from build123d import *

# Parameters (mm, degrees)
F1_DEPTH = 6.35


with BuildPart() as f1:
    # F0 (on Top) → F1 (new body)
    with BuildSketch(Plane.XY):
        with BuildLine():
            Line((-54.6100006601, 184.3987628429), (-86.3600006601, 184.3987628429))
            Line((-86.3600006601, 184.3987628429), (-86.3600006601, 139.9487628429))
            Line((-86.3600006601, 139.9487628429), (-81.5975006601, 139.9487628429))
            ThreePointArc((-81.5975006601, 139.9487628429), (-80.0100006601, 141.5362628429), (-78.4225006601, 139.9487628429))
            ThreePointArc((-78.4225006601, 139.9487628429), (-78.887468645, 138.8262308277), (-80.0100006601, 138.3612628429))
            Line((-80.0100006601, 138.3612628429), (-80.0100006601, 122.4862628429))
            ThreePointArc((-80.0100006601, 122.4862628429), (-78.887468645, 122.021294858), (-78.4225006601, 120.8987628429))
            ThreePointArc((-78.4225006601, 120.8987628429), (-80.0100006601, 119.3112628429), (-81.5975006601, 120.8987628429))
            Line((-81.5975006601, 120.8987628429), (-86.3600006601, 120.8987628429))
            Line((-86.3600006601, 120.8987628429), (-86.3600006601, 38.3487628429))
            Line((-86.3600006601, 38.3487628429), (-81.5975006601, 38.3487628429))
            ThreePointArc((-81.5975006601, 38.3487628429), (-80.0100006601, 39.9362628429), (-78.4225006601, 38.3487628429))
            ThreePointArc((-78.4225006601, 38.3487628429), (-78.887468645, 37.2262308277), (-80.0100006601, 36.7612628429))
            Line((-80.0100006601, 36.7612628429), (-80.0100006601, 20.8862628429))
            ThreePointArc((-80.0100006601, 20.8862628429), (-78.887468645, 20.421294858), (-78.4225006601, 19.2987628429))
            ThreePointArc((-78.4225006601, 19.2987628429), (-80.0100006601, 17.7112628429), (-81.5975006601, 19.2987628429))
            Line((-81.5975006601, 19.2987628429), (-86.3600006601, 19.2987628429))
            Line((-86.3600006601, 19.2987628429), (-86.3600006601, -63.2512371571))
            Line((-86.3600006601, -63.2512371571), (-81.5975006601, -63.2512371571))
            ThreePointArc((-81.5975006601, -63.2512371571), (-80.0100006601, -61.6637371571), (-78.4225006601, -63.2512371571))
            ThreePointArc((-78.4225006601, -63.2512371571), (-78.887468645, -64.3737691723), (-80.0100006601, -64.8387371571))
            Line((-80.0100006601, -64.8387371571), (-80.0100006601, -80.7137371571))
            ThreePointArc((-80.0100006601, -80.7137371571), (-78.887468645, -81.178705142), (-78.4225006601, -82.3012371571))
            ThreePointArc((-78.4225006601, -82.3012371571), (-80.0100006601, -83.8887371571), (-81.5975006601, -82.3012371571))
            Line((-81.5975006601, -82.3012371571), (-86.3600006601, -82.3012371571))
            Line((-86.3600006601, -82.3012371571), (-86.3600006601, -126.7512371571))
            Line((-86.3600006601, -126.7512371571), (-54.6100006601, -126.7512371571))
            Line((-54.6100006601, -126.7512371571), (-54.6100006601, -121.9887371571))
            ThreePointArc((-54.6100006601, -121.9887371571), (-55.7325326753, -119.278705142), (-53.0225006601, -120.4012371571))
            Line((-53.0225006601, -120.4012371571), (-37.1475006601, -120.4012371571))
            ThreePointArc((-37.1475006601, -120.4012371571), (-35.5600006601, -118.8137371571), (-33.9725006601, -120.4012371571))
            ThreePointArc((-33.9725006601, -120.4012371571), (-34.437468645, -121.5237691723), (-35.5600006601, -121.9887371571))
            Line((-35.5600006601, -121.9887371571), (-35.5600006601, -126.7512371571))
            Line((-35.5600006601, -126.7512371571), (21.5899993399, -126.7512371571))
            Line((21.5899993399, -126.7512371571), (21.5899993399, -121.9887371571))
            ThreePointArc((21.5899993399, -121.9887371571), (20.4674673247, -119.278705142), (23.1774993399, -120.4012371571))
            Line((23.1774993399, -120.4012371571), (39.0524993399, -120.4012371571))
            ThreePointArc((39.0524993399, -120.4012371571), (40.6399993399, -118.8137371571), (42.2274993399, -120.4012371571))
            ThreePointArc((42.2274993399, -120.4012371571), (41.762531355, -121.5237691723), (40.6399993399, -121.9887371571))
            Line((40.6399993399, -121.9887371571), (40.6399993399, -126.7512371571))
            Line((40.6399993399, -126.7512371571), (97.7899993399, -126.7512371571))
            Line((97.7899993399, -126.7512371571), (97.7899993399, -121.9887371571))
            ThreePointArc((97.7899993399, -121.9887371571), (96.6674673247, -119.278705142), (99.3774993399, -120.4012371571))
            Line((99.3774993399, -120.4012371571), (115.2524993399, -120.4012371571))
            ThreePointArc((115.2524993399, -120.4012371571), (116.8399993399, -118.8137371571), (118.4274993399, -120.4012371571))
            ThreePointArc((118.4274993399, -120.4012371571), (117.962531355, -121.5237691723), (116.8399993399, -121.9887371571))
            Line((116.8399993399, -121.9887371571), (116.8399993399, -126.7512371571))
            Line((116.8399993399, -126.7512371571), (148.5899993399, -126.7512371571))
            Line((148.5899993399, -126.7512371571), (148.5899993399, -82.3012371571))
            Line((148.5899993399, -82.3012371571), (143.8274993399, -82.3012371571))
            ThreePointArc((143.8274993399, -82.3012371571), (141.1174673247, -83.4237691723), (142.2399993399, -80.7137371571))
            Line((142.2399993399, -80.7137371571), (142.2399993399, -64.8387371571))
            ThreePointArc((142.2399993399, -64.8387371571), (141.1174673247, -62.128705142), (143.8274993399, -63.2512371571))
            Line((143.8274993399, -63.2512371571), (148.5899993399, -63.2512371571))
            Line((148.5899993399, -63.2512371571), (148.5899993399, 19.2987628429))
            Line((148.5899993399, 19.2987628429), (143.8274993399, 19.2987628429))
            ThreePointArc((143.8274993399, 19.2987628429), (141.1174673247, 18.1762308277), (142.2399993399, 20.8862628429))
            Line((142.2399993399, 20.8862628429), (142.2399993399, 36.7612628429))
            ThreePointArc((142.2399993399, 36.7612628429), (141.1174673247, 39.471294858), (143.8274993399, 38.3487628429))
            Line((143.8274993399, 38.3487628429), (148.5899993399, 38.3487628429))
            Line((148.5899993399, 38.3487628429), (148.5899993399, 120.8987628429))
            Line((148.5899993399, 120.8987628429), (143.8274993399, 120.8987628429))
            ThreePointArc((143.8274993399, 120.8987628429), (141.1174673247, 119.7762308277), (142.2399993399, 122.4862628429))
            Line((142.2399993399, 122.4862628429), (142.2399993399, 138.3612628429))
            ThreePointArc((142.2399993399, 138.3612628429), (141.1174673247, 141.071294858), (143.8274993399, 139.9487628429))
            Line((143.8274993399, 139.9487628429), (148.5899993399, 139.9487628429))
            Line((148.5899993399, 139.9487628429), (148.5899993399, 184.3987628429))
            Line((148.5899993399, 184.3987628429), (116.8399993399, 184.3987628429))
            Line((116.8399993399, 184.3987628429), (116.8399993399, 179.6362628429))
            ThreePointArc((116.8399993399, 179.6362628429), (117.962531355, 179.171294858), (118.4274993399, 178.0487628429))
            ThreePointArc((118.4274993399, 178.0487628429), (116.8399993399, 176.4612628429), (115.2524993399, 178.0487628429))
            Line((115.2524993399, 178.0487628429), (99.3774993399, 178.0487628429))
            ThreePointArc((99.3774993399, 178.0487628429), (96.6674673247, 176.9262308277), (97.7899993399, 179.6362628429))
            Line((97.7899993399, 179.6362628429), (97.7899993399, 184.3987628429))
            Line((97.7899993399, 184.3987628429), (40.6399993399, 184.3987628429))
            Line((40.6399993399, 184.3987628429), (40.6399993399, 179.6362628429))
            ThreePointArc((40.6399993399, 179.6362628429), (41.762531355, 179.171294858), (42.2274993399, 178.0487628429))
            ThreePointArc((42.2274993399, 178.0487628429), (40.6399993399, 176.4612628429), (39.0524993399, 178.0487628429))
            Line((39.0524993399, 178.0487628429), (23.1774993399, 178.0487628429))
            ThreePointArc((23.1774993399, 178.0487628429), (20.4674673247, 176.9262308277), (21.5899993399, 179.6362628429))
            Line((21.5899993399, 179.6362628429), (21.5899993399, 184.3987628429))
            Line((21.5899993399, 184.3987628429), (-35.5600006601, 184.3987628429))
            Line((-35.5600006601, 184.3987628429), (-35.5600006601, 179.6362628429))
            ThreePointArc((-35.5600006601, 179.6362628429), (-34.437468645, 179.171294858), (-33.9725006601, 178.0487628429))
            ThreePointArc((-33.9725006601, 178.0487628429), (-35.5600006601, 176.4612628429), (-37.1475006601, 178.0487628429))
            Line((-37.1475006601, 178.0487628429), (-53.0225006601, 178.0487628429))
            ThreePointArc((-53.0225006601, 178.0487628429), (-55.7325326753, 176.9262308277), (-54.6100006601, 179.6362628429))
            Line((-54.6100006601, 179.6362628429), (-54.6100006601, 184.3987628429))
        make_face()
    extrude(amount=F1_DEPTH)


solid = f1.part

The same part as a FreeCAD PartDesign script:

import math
import FreeCAD as App
import Part
import Sketcher

V = App.Vector
Q = App.Units.Quantity

doc = App.newDocument("Part")
body = doc.addObject("PartDesign::Body", "Body")

# Sketch on XY plane
sketch1 = doc.addObject("Sketcher::SketchObject", "Sketch")
body.addObject(sketch1)
sketch1.AttachmentSupport = (doc.XY_Plane, [""])
sketch1.MapMode = "FlatFace"
sketch1.addGeometry(Part.LineSegment(V(-54.6, 184.4, 0), V(-86.4, 184.4, 0)), False)
sketch1.addGeometry(Part.LineSegment(V(-86.4, 184.4, 0), V(-86.4, 139.9, 0)), False)
sketch1.addGeometry(Part.LineSegment(V(-86.4, 139.9, 0), V(-81.6, 139.9, 0)), False)
sketch1.addGeometry(Part.ArcOfCircle(Part.Circle(V(-80, 139.9, 0), V(0, 0, 1), 1.6), math.radians(0), math.radians(180)), False)
sketch1.addGeometry(Part.ArcOfCircle(Part.Circle(V(-80, 139.9, 0), V(0, 0, 1), 1.6), math.radians(-90), math.radians(0)), False)
sketch1.addGeometry(Part.LineSegment(V(-80, 138.4, 0), V(-80, 122.5, 0)), False)
sketch1.addGeometry(Part.ArcOfCircle(Part.Circle(V(-80, 120.9, 0), V(0, 0, 1), 1.6), math.radians(0), math.radians(90)), False)
sketch1.addGeometry(Part.ArcOfCircle(Part.Circle(V(-80, 120.9, 0), V(0, 0, 1), 1.6), math.radians(180), math.radians(360)), False)
sketch1.addGeometry(Part.LineSegment(V(-81.6, 120.9, 0), V(-86.4, 120.9, 0)), False)
sketch1.addGeometry(Part.LineSegment(V(-86.4, 120.9, 0), V(-86.4, 38.3, 0)), False)
sketch1.addGeometry(Part.LineSegment(V(-86.4, 38.3, 0), V(-81.6, 38.3, 0)), False)
sketch1.addGeometry(Part.ArcOfCircle(Part.Circle(V(-80, 38.3, 0), V(0, 0, 1), 1.6), math.radians(0), math.radians(180)), False)
sketch1.addGeometry(Part.ArcOfCircle(Part.Circle(V(-80, 38.3, 0), V(0, 0, 1), 1.6), math.radians(-90), math.radians(0)), False)
sketch1.addGeometry(Part.LineSegment(V(-80, 36.8, 0), V(-80, 20.9, 0)), False)
sketch1.addGeometry(Part.ArcOfCircle(Part.Circle(V(-80, 19.3, 0), V(0, 0, 1), 1.6), math.radians(0), math.radians(90)), False)
sketch1.addGeometry(Part.ArcOfCircle(Part.Circle(V(-80, 19.3, 0), V(0, 0, 1), 1.6), math.radians(180), math.radians(360)), False)
sketch1.addGeometry(Part.LineSegment(V(-81.6, 19.3, 0), V(-86.4, 19.3, 0)), False)
sketch1.addGeometry(Part.LineSegment(V(-86.4, 19.3, 0), V(-86.4, -63.3, 0)), False)
sketch1.addGeometry(Part.LineSegment(V(-86.4, -63.3, 0), V(-81.6, -63.3, 0)), False)
sketch1.addGeometry(Part.ArcOfCircle(Part.Circle(V(-80, -63.3, 0), V(0, 0, 1), 1.6), math.radians(0), math.radians(180)), False)
sketch1.addGeometry(Part.ArcOfCircle(Part.Circle(V(-80, -63.3, 0), V(0, 0, 1), 1.6), math.radians(-90), math.radians(0)), False)
sketch1.addGeometry(Part.LineSegment(V(-80, -64.8, 0), V(-80, -80.7, 0)), False)
sketch1.addGeometry(Part.ArcOfCircle(Part.Circle(V(-80, -82.3, 0), V(0, 0, 1), 1.6), math.radians(0), math.radians(90)), False)
sketch1.addGeometry(Part.ArcOfCircle(Part.Circle(V(-80, -82.3, 0), V(0, 0, 1), 1.6), math.radians(180), math.radians(360)), False)
sketch1.addGeometry(Part.LineSegment(V(-81.6, -82.3, 0), V(-86.4, -82.3, 0)), False)
sketch1.addGeometry(Part.LineSegment(V(-86.4, -82.3, 0), V(-86.4, -126.8, 0)), False)
sketch1.addGeometry(Part.LineSegment(V(-86.4, -126.8, 0), V(-54.6, -126.8, 0)), False)
sketch1.addGeometry(Part.LineSegment(V(-54.6, -126.8, 0), V(-54.6, -122, 0)), False)
sketch1.addGeometry(Part.ArcOfCircle(Part.Circle(V(-54.6, -120.4, 0), V(0, 0, 1), 1.6), math.radians(0), math.radians(270)), False)
sketch1.addGeometry(Part.LineSegment(V(-53, -120.4, 0), V(-37.1, -120.4, 0)), False)
sketch1.addGeometry(Part.ArcOfCircle(Part.Circle(V(-35.6, -120.4, 0), V(0, 0, 1), 1.6), math.radians(0), math.radians(180)), False)
sketch1.addGeometry(Part.ArcOfCircle(Part.Circle(V(-35.6, -120.4, 0), V(0, 0, 1), 1.6), math.radians(-90), math.radians(0)), False)
sketch1.addGeometry(Part.LineSegment(V(-35.6, -122, 0), V(-35.6, -126.8, 0)), False)
sketch1.addGeometry(Part.LineSegment(V(-35.6, -126.8, 0), V(21.6, -126.8, 0)), False)
sketch1.addGeometry(Part.LineSegment(V(21.6, -126.8, 0), V(21.6, -122, 0)), False)
sketch1.addGeometry(Part.ArcOfCircle(Part.Circle(V(21.6, -120.4, 0), V(0, 0, 1), 1.6), math.radians(0), math.radians(270)), False)
sketch1.addGeometry(Part.LineSegment(V(23.2, -120.4, 0), V(39.1, -120.4, 0)), False)
sketch1.addGeometry(Part.ArcOfCircle(Part.Circle(V(40.6, -120.4, 0), V(0, 0, 1), 1.6), math.radians(0), math.radians(180)), False)
sketch1.addGeometry(Part.ArcOfCircle(Part.Circle(V(40.6, -120.4, 0), V(0, 0, 1), 1.6), math.radians(-90), math.radians(0)), False)
sketch1.addGeometry(Part.LineSegment(V(40.6, -122, 0), V(40.6, -126.8, 0)), False)
sketch1.addGeometry(Part.LineSegment(V(40.6, -126.8, 0), V(97.8, -126.8, 0)), False)
sketch1.addGeometry(Part.LineSegment(V(97.8, -126.8, 0), V(97.8, -122, 0)), False)
sketch1.addGeometry(Part.ArcOfCircle(Part.Circle(V(97.8, -120.4, 0), V(0, 0, 1), 1.6), math.radians(0), math.radians(270)), False)
sketch1.addGeometry(Part.LineSegment(V(99.4, -120.4, 0), V(115.3, -120.4, 0)), False)
sketch1.addGeometry(Part.ArcOfCircle(Part.Circle(V(116.8, -120.4, 0), V(0, 0, 1), 1.6), math.radians(0), math.radians(180)), False)
sketch1.addGeometry(Part.ArcOfCircle(Part.Circle(V(116.8, -120.4, 0), V(0, 0, 1), 1.6), math.radians(-90), math.radians(0)), False)
sketch1.addGeometry(Part.LineSegment(V(116.8, -122, 0), V(116.8, -126.8, 0)), False)
sketch1.addGeometry(Part.LineSegment(V(116.8, -126.8, 0), V(148.6, -126.8, 0)), False)
sketch1.addGeometry(Part.LineSegment(V(148.6, -126.8, 0), V(148.6, -82.3, 0)), False)
sketch1.addGeometry(Part.LineSegment(V(148.6, -82.3, 0), V(143.8, -82.3, 0)), False)
sketch1.addGeometry(Part.ArcOfCircle(Part.Circle(V(142.2, -82.3, 0), V(0, 0, 1), 1.6), math.radians(90), math.radians(360)), False)
sketch1.addGeometry(Part.LineSegment(V(142.2, -80.7, 0), V(142.2, -64.8, 0)), False)
sketch1.addGeometry(Part.ArcOfCircle(Part.Circle(V(142.2, -63.3, 0), V(0, 0, 1), 1.6), math.radians(0), math.radians(270)), False)
sketch1.addGeometry(Part.LineSegment(V(143.8, -63.3, 0), V(148.6, -63.3, 0)), False)
sketch1.addGeometry(Part.LineSegment(V(148.6, -63.3, 0), V(148.6, 19.3, 0)), False)
sketch1.addGeometry(Part.LineSegment(V(148.6, 19.3, 0), V(143.8, 19.3, 0)), False)
sketch1.addGeometry(Part.ArcOfCircle(Part.Circle(V(142.2, 19.3, 0), V(0, 0, 1), 1.6), math.radians(90), math.radians(360)), False)
sketch1.addGeometry(Part.LineSegment(V(142.2, 20.9, 0), V(142.2, 36.8, 0)), False)
sketch1.addGeometry(Part.ArcOfCircle(Part.Circle(V(142.2, 38.3, 0), V(0, 0, 1), 1.6), math.radians(0), math.radians(270)), False)
sketch1.addGeometry(Part.LineSegment(V(143.8, 38.3, 0), V(148.6, 38.3, 0)), False)
sketch1.addGeometry(Part.LineSegment(V(148.6, 38.3, 0), V(148.6, 120.9, 0)), False)
sketch1.addGeometry(Part.LineSegment(V(148.6, 120.9, 0), V(143.8, 120.9, 0)), False)
sketch1.addGeometry(Part.ArcOfCircle(Part.Circle(V(142.2, 120.9, 0), V(0, 0, 1), 1.6), math.radians(90), math.radians(360)), False)
sketch1.addGeometry(Part.LineSegment(V(142.2, 122.5, 0), V(142.2, 138.4, 0)), False)
sketch1.addGeometry(Part.ArcOfCircle(Part.Circle(V(142.2, 139.9, 0), V(0, 0, 1), 1.6), math.radians(0), math.radians(270)), False)
sketch1.addGeometry(Part.LineSegment(V(143.8, 139.9, 0), V(148.6, 139.9, 0)), False)
sketch1.addGeometry(Part.LineSegment(V(148.6, 139.9, 0), V(148.6, 184.4, 0)), False)
sketch1.addGeometry(Part.LineSegment(V(148.6, 184.4, 0), V(116.8, 184.4, 0)), False)
sketch1.addGeometry(Part.LineSegment(V(116.8, 184.4, 0), V(116.8, 179.6, 0)), False)
sketch1.addGeometry(Part.ArcOfCircle(Part.Circle(V(116.8, 178, 0), V(0, 0, 1), 1.6), math.radians(0), math.radians(90)), False)
sketch1.addGeometry(Part.ArcOfCircle(Part.Circle(V(116.8, 178, 0), V(0, 0, 1), 1.6), math.radians(180), math.radians(360)), False)
sketch1.addGeometry(Part.LineSegment(V(115.3, 178, 0), V(99.4, 178, 0)), False)
sketch1.addGeometry(Part.ArcOfCircle(Part.Circle(V(97.8, 178, 0), V(0, 0, 1), 1.6), math.radians(90), math.radians(360)), False)
sketch1.addGeometry(Part.LineSegment(V(97.8, 179.6, 0), V(97.8, 184.4, 0)), False)
sketch1.addGeometry(Part.LineSegment(V(97.8, 184.4, 0), V(40.6, 184.4, 0)), False)
sketch1.addGeometry(Part.LineSegment(V(40.6, 184.4, 0), V(40.6, 179.6, 0)), False)
sketch1.addGeometry(Part.ArcOfCircle(Part.Circle(V(40.6, 178, 0), V(0, 0, 1), 1.6), math.radians(0), math.radians(90)), False)
sketch1.addGeometry(Part.ArcOfCircle(Part.Circle(V(40.6, 178, 0), V(0, 0, 1), 1.6), math.radians(180), math.radians(360)), False)
sketch1.addGeometry(Part.LineSegment(V(39.1, 178, 0), V(23.2, 178, 0)), False)
sketch1.addGeometry(Part.ArcOfCircle(Part.Circle(V(21.6, 178, 0), V(0, 0, 1), 1.6), math.radians(90), math.radians(360)), False)
sketch1.addGeometry(Part.LineSegment(V(21.6, 179.6, 0), V(21.6, 184.4, 0)), False)
sketch1.addGeometry(Part.LineSegment(V(21.6, 184.4, 0), V(-35.6, 184.4, 0)), False)
sketch1.addGeometry(Part.LineSegment(V(-35.6, 184.4, 0), V(-35.6, 179.6, 0)), False)
sketch1.addGeometry(Part.ArcOfCircle(Part.Circle(V(-35.6, 178, 0), V(0, 0, 1), 1.6), math.radians(0), math.radians(90)), False)
sketch1.addGeometry(Part.ArcOfCircle(Part.Circle(V(-35.6, 178, 0), V(0, 0, 1), 1.6), math.radians(180), math.radians(360)), False)
sketch1.addGeometry(Part.LineSegment(V(-37.1, 178, 0), V(-53, 178, 0)), False)
sketch1.addGeometry(Part.ArcOfCircle(Part.Circle(V(-54.6, 178, 0), V(0, 0, 1), 1.6), math.radians(90), math.radians(360)), False)
sketch1.addGeometry(Part.LineSegment(V(-54.6, 179.6, 0), V(-54.6, 184.4, 0)), False)
sketch1.addConstraint(Sketcher.Constraint("Coincident", 0, 2, 1, 1))
sketch1.addConstraint(Sketcher.Constraint("Coincident", 1, 2, 2, 1))
sketch1.addConstraint(Sketcher.Constraint("Coincident", 2, 2, 3, 2))
sketch1.addConstraint(Sketcher.Constraint("Tangent", 3, 1, 4, 2))
sketch1.addConstraint(Sketcher.Constraint("Coincident", 4, 1, 5, 1))
sketch1.addConstraint(Sketcher.Constraint("Coincident", 5, 2, 6, 2))
sketch1.addConstraint(Sketcher.Constraint("Tangent", 6, 1, 7, 2))
sketch1.addConstraint(Sketcher.Constraint("Coincident", 7, 1, 8, 1))
sketch1.addConstraint(Sketcher.Constraint("Coincident", 8, 2, 9, 1))
sketch1.addConstraint(Sketcher.Constraint("Coincident", 9, 2, 10, 1))
sketch1.addConstraint(Sketcher.Constraint("Coincident", 10, 2, 11, 2))
sketch1.addConstraint(Sketcher.Constraint("Tangent", 11, 1, 12, 2))
sketch1.addConstraint(Sketcher.Constraint("Coincident", 12, 1, 13, 1))
sketch1.addConstraint(Sketcher.Constraint("Coincident", 13, 2, 14, 2))
sketch1.addConstraint(Sketcher.Constraint("Tangent", 14, 1, 15, 2))
sketch1.addConstraint(Sketcher.Constraint("Coincident", 15, 1, 16, 1))
sketch1.addConstraint(Sketcher.Constraint("Coincident", 16, 2, 17, 1))
sketch1.addConstraint(Sketcher.Constraint("Coincident", 17, 2, 18, 1))
sketch1.addConstraint(Sketcher.Constraint("Coincident", 18, 2, 19, 2))
sketch1.addConstraint(Sketcher.Constraint("Tangent", 19, 1, 20, 2))
sketch1.addConstraint(Sketcher.Constraint("Coincident", 20, 1, 21, 1))
sketch1.addConstraint(Sketcher.Constraint("Coincident", 21, 2, 22, 2))
sketch1.addConstraint(Sketcher.Constraint("Tangent", 22, 1, 23, 2))
sketch1.addConstraint(Sketcher.Constraint("Coincident", 23, 1, 24, 1))
sketch1.addConstraint(Sketcher.Constraint("Coincident", 24, 2, 25, 1))
sketch1.addConstraint(Sketcher.Constraint("Coincident", 25, 2, 26, 1))
sketch1.addConstraint(Sketcher.Constraint("Coincident", 26, 2, 27, 1))
sketch1.addConstraint(Sketcher.Constraint("Coincident", 27, 2, 28, 2))
sketch1.addConstraint(Sketcher.Constraint("Coincident", 28, 1, 29, 1))
sketch1.addConstraint(Sketcher.Constraint("Coincident", 29, 2, 30, 2))
sketch1.addConstraint(Sketcher.Constraint("Tangent", 30, 1, 31, 2))
sketch1.addConstraint(Sketcher.Constraint("Coincident", 31, 1, 32, 1))
sketch1.addConstraint(Sketcher.Constraint("Coincident", 32, 2, 33, 1))
sketch1.addConstraint(Sketcher.Constraint("Coincident", 33, 2, 34, 1))
sketch1.addConstraint(Sketcher.Constraint("Coincident", 34, 2, 35, 2))
sketch1.addConstraint(Sketcher.Constraint("Coincident", 35, 1, 36, 1))
sketch1.addConstraint(Sketcher.Constraint("Coincident", 36, 2, 37, 2))
sketch1.addConstraint(Sketcher.Constraint("Tangent", 37, 1, 38, 2))
sketch1.addConstraint(Sketcher.Constraint("Coincident", 38, 1, 39, 1))
sketch1.addConstraint(Sketcher.Constraint("Coincident", 39, 2, 40, 1))
sketch1.addConstraint(Sketcher.Constraint("Coincident", 40, 2, 41, 1))
sketch1.addConstraint(Sketcher.Constraint("Coincident", 41, 2, 42, 2))
sketch1.addConstraint(Sketcher.Constraint("Coincident", 42, 1, 43, 1))
sketch1.addConstraint(Sketcher.Constraint("Coincident", 43, 2, 44, 2))
sketch1.addConstraint(Sketcher.Constraint("Tangent", 44, 1, 45, 2))
sketch1.addConstraint(Sketcher.Constraint("Coincident", 45, 1, 46, 1))
sketch1.addConstraint(Sketcher.Constraint("Coincident", 46, 2, 47, 1))
sketch1.addConstraint(Sketcher.Constraint("Coincident", 47, 2, 48, 1))
sketch1.addConstraint(Sketcher.Constraint("Coincident", 48, 2, 49, 1))
sketch1.addConstraint(Sketcher.Constraint("Coincident", 49, 2, 50, 2))
sketch1.addConstraint(Sketcher.Constraint("Coincident", 50, 1, 51, 1))
sketch1.addConstraint(Sketcher.Constraint("Coincident", 51, 2, 52, 2))
sketch1.addConstraint(Sketcher.Constraint("Coincident", 52, 1, 53, 1))
sketch1.addConstraint(Sketcher.Constraint("Coincident", 53, 2, 54, 1))
sketch1.addConstraint(Sketcher.Constraint("Coincident", 54, 2, 55, 1))
sketch1.addConstraint(Sketcher.Constraint("Coincident", 55, 2, 56, 2))
sketch1.addConstraint(Sketcher.Constraint("Coincident", 56, 1, 57, 1))
sketch1.addConstraint(Sketcher.Constraint("Coincident", 57, 2, 58, 2))
sketch1.addConstraint(Sketcher.Constraint("Coincident", 58, 1, 59, 1))
sketch1.addConstraint(Sketcher.Constraint("Coincident", 59, 2, 60, 1))
sketch1.addConstraint(Sketcher.Constraint("Coincident", 60, 2, 61, 1))
sketch1.addConstraint(Sketcher.Constraint("Coincident", 61, 2, 62, 2))
sketch1.addConstraint(Sketcher.Constraint("Coincident", 62, 1, 63, 1))
sketch1.addConstraint(Sketcher.Constraint("Coincident", 63, 2, 64, 2))
sketch1.addConstraint(Sketcher.Constraint("Coincident", 64, 1, 65, 1))
sketch1.addConstraint(Sketcher.Constraint("Coincident", 65, 2, 66, 1))
sketch1.addConstraint(Sketcher.Constraint("Coincident", 66, 2, 67, 1))
sketch1.addConstraint(Sketcher.Constraint("Coincident", 67, 2, 68, 1))
sketch1.addConstraint(Sketcher.Constraint("Coincident", 68, 2, 69, 2))
sketch1.addConstraint(Sketcher.Constraint("Tangent", 69, 1, 70, 2))
sketch1.addConstraint(Sketcher.Constraint("Coincident", 70, 1, 71, 1))
sketch1.addConstraint(Sketcher.Constraint("Coincident", 71, 2, 72, 2))
sketch1.addConstraint(Sketcher.Constraint("Coincident", 72, 1, 73, 1))
sketch1.addConstraint(Sketcher.Constraint("Coincident", 73, 2, 74, 1))
sketch1.addConstraint(Sketcher.Constraint("Coincident", 74, 2, 75, 1))
sketch1.addConstraint(Sketcher.Constraint("Coincident", 75, 2, 76, 2))
sketch1.addConstraint(Sketcher.Constraint("Tangent", 76, 1, 77, 2))
sketch1.addConstraint(Sketcher.Constraint("Coincident", 77, 1, 78, 1))
sketch1.addConstraint(Sketcher.Constraint("Coincident", 78, 2, 79, 2))
sketch1.addConstraint(Sketcher.Constraint("Coincident", 79, 1, 80, 1))
sketch1.addConstraint(Sketcher.Constraint("Coincident", 80, 2, 81, 1))
sketch1.addConstraint(Sketcher.Constraint("Coincident", 81, 2, 82, 1))
sketch1.addConstraint(Sketcher.Constraint("Coincident", 82, 2, 83, 2))
sketch1.addConstraint(Sketcher.Constraint("Tangent", 83, 1, 84, 2))
sketch1.addConstraint(Sketcher.Constraint("Coincident", 84, 1, 85, 1))
sketch1.addConstraint(Sketcher.Constraint("Coincident", 85, 2, 86, 2))
sketch1.addConstraint(Sketcher.Constraint("Coincident", 86, 1, 87, 1))
sketch1.addConstraint(Sketcher.Constraint("Coincident", 87, 2, 0, 1))
sketch1.addConstraint(Sketcher.Constraint("Horizontal", 0))
sketch1.addConstraint(Sketcher.Constraint("Vertical", 1))
sketch1.addConstraint(Sketcher.Constraint("Horizontal", 2))
sketch1.addConstraint(Sketcher.Constraint("Vertical", 5))
sketch1.addConstraint(Sketcher.Constraint("Horizontal", 8))
sketch1.addConstraint(Sketcher.Constraint("Vertical", 9))
sketch1.addConstraint(Sketcher.Constraint("Horizontal", 10))
sketch1.addConstraint(Sketcher.Constraint("Vertical", 13))
sketch1.addConstraint(Sketcher.Constraint("Horizontal", 16))
sketch1.addConstraint(Sketcher.Constraint("Vertical", 17))
sketch1.addConstraint(Sketcher.Constraint("Horizontal", 18))
sketch1.addConstraint(Sketcher.Constraint("Vertical", 21))
sketch1.addConstraint(Sketcher.Constraint("Horizontal", 24))
sketch1.addConstraint(Sketcher.Constraint("Vertical", 25))
sketch1.addConstraint(Sketcher.Constraint("Horizontal", 26))
sketch1.addConstraint(Sketcher.Constraint("Vertical", 27))
sketch1.addConstraint(Sketcher.Constraint("Horizontal", 29))
sketch1.addConstraint(Sketcher.Constraint("Vertical", 32))
sketch1.addConstraint(Sketcher.Constraint("Horizontal", 33))
sketch1.addConstraint(Sketcher.Constraint("Vertical", 34))
sketch1.addConstraint(Sketcher.Constraint("Horizontal", 36))
sketch1.addConstraint(Sketcher.Constraint("Vertical", 39))
sketch1.addConstraint(Sketcher.Constraint("Horizontal", 40))
sketch1.addConstraint(Sketcher.Constraint("Vertical", 41))
sketch1.addConstraint(Sketcher.Constraint("Horizontal", 43))
sketch1.addConstraint(Sketcher.Constraint("Vertical", 46))
sketch1.addConstraint(Sketcher.Constraint("Horizontal", 47))
sketch1.addConstraint(Sketcher.Constraint("Vertical", 48))
sketch1.addConstraint(Sketcher.Constraint("Horizontal", 49))
sketch1.addConstraint(Sketcher.Constraint("Vertical", 51))
sketch1.addConstraint(Sketcher.Constraint("Horizontal", 53))
sketch1.addConstraint(Sketcher.Constraint("Vertical", 54))
sketch1.addConstraint(Sketcher.Constraint("Horizontal", 55))
sketch1.addConstraint(Sketcher.Constraint("Vertical", 57))
sketch1.addConstraint(Sketcher.Constraint("Horizontal", 59))
sketch1.addConstraint(Sketcher.Constraint("Vertical", 60))
sketch1.addConstraint(Sketcher.Constraint("Horizontal", 61))
sketch1.addConstraint(Sketcher.Constraint("Vertical", 63))
sketch1.addConstraint(Sketcher.Constraint("Horizontal", 65))
sketch1.addConstraint(Sketcher.Constraint("Vertical", 66))
sketch1.addConstraint(Sketcher.Constraint("Horizontal", 67))
sketch1.addConstraint(Sketcher.Constraint("Vertical", 68))
sketch1.addConstraint(Sketcher.Constraint("Horizontal", 71))
sketch1.addConstraint(Sketcher.Constraint("Vertical", 73))
sketch1.addConstraint(Sketcher.Constraint("Horizontal", 74))
sketch1.addConstraint(Sketcher.Constraint("Vertical", 75))
sketch1.addConstraint(Sketcher.Constraint("Horizontal", 78))
sketch1.addConstraint(Sketcher.Constraint("Vertical", 80))
sketch1.addConstraint(Sketcher.Constraint("Horizontal", 81))
sketch1.addConstraint(Sketcher.Constraint("Vertical", 82))
sketch1.addConstraint(Sketcher.Constraint("Horizontal", 85))
sketch1.addConstraint(Sketcher.Constraint("Vertical", 87))
sketch1.addConstraint(Sketcher.Constraint("Equal", 3, 4))
sketch1.addConstraint(Sketcher.Constraint("Equal", 4, 6))
sketch1.addConstraint(Sketcher.Constraint("Equal", 6, 7))
sketch1.addConstraint(Sketcher.Constraint("Equal", 7, 11))
sketch1.addConstraint(Sketcher.Constraint("Equal", 11, 12))
sketch1.addConstraint(Sketcher.Constraint("Equal", 12, 14))
sketch1.addConstraint(Sketcher.Constraint("Equal", 14, 15))
sketch1.addConstraint(Sketcher.Constraint("Equal", 15, 19))
sketch1.addConstraint(Sketcher.Constraint("Equal", 19, 20))
sketch1.addConstraint(Sketcher.Constraint("Equal", 20, 22))
sketch1.addConstraint(Sketcher.Constraint("Equal", 22, 23))
sketch1.addConstraint(Sketcher.Constraint("Equal", 23, 28))
sketch1.addConstraint(Sketcher.Constraint("Equal", 28, 30))
sketch1.addConstraint(Sketcher.Constraint("Equal", 30, 31))
sketch1.addConstraint(Sketcher.Constraint("Equal", 31, 35))
sketch1.addConstraint(Sketcher.Constraint("Equal", 35, 37))
sketch1.addConstraint(Sketcher.Constraint("Equal", 37, 38))
sketch1.addConstraint(Sketcher.Constraint("Equal", 38, 42))
sketch1.addConstraint(Sketcher.Constraint("Equal", 42, 44))
sketch1.addConstraint(Sketcher.Constraint("Equal", 44, 45))
sketch1.addConstraint(Sketcher.Constraint("Equal", 45, 50))
sketch1.addConstraint(Sketcher.Constraint("Equal", 50, 52))
sketch1.addConstraint(Sketcher.Constraint("Equal", 52, 56))
sketch1.addConstraint(Sketcher.Constraint("Equal", 56, 58))
sketch1.addConstraint(Sketcher.Constraint("Equal", 58, 62))
sketch1.addConstraint(Sketcher.Constraint("Equal", 62, 64))
sketch1.addConstraint(Sketcher.Constraint("Equal", 64, 69))
sketch1.addConstraint(Sketcher.Constraint("Equal", 69, 70))
sketch1.addConstraint(Sketcher.Constraint("Equal", 70, 72))
sketch1.addConstraint(Sketcher.Constraint("Equal", 72, 76))
sketch1.addConstraint(Sketcher.Constraint("Equal", 76, 77))
sketch1.addConstraint(Sketcher.Constraint("Equal", 77, 79))
sketch1.addConstraint(Sketcher.Constraint("Equal", 79, 83))
sketch1.addConstraint(Sketcher.Constraint("Equal", 83, 84))
sketch1.addConstraint(Sketcher.Constraint("Equal", 84, 86))
sketch1.addConstraint(Sketcher.Constraint("Horizontal", 28, 3, 30, 3))
sketch1.addConstraint(Sketcher.Constraint("Horizontal", 31, 3, 35, 3))
sketch1.addConstraint(Sketcher.Constraint("Horizontal", 35, 3, 37, 3))
sketch1.addConstraint(Sketcher.Constraint("Horizontal", 38, 3, 42, 3))
sketch1.addConstraint(Sketcher.Constraint("Horizontal", 42, 3, 44, 3))
sketch1.addConstraint(Sketcher.Constraint("Horizontal", 23, 3, 50, 3))
sketch1.addConstraint(Sketcher.Constraint("Horizontal", 20, 3, 52, 3))
sketch1.addConstraint(Sketcher.Constraint("Horizontal", 15, 3, 56, 3))
sketch1.addConstraint(Sketcher.Constraint("Horizontal", 12, 3, 58, 3))
sketch1.addConstraint(Sketcher.Constraint("Horizontal", 7, 3, 62, 3))
sketch1.addConstraint(Sketcher.Constraint("Horizontal", 4, 3, 64, 3))
sketch1.addConstraint(Sketcher.Constraint("Horizontal", 70, 3, 72, 3))
sketch1.addConstraint(Sketcher.Constraint("Horizontal", 72, 3, 76, 3))
sketch1.addConstraint(Sketcher.Constraint("Horizontal", 77, 3, 79, 3))
sketch1.addConstraint(Sketcher.Constraint("Horizontal", 79, 3, 83, 3))
sketch1.addConstraint(Sketcher.Constraint("Horizontal", 84, 3, 86, 3))
sketch1.addConstraint(Sketcher.Constraint("Horizontal", 64, 3, 1, 2))
sketch1.addConstraint(Sketcher.Constraint("Horizontal", 2, 2, 3, 1))
sketch1.addConstraint(Sketcher.Constraint("Horizontal", 62, 3, 6, 1))
sketch1.addConstraint(Sketcher.Constraint("Horizontal", 6, 1, 7, 1))
sketch1.addConstraint(Sketcher.Constraint("Horizontal", 58, 3, 9, 2))
sketch1.addConstraint(Sketcher.Constraint("Horizontal", 10, 2, 11, 1))
sketch1.addConstraint(Sketcher.Constraint("Horizontal", 56, 3, 14, 1))
sketch1.addConstraint(Sketcher.Constraint("Horizontal", 14, 1, 15, 1))
sketch1.addConstraint(Sketcher.Constraint("Horizontal", 52, 3, 17, 2))
sketch1.addConstraint(Sketcher.Constraint("Horizontal", 18, 2, 19, 1))
sketch1.addConstraint(Sketcher.Constraint("Horizontal", 50, 3, 22, 1))
sketch1.addConstraint(Sketcher.Constraint("Horizontal", 22, 1, 23, 1))
sketch1.addConstraint(Sketcher.Constraint("Horizontal", 45, 3, 28, 1))
sketch1.addConstraint(Sketcher.Constraint("Horizontal", 29, 2, 30, 1))
sketch1.addConstraint(Sketcher.Constraint("Horizontal", 26, 2, 32, 2))
sketch1.addConstraint(Sketcher.Constraint("Horizontal", 30, 1, 35, 1))
sketch1.addConstraint(Sketcher.Constraint("Horizontal", 36, 2, 37, 1))
sketch1.addConstraint(Sketcher.Constraint("Horizontal", 33, 2, 39, 2))
sketch1.addConstraint(Sketcher.Constraint("Horizontal", 37, 1, 42, 1))
sketch1.addConstraint(Sketcher.Constraint("Horizontal", 43, 2, 44, 1))
sketch1.addConstraint(Sketcher.Constraint("Horizontal", 40, 2, 46, 2))
sketch1.addConstraint(Sketcher.Constraint("Horizontal", 24, 2, 48, 2))
sketch1.addConstraint(Sketcher.Constraint("Horizontal", 19, 1, 52, 1))
sketch1.addConstraint(Sketcher.Constraint("Horizontal", 16, 2, 54, 2))
sketch1.addConstraint(Sketcher.Constraint("Horizontal", 11, 1, 58, 1))
sketch1.addConstraint(Sketcher.Constraint("Horizontal", 8, 2, 60, 2))
sketch1.addConstraint(Sketcher.Constraint("Horizontal", 3, 1, 64, 1))
sketch1.addConstraint(Sketcher.Constraint("Horizontal", 0, 2, 66, 2))
sketch1.addConstraint(Sketcher.Constraint("Horizontal", 86, 3, 69, 1))
sketch1.addConstraint(Sketcher.Constraint("Horizontal", 69, 1, 70, 1))
sketch1.addConstraint(Sketcher.Constraint("Horizontal", 67, 2, 73, 2))
sketch1.addConstraint(Sketcher.Constraint("Horizontal", 71, 2, 76, 1))
sketch1.addConstraint(Sketcher.Constraint("Horizontal", 76, 1, 77, 1))
sketch1.addConstraint(Sketcher.Constraint("Horizontal", 74, 2, 80, 2))
sketch1.addConstraint(Sketcher.Constraint("Horizontal", 78, 2, 83, 1))
sketch1.addConstraint(Sketcher.Constraint("Horizontal", 83, 1, 84, 1))
sketch1.addConstraint(Sketcher.Constraint("Vertical", 4, 3, 6, 3))
sketch1.addConstraint(Sketcher.Constraint("Vertical", 7, 3, 11, 3))
sketch1.addConstraint(Sketcher.Constraint("Vertical", 12, 3, 14, 3))
sketch1.addConstraint(Sketcher.Constraint("Vertical", 15, 3, 19, 3))
sketch1.addConstraint(Sketcher.Constraint("Vertical", 20, 3, 22, 3))
sketch1.addConstraint(Sketcher.Constraint("Vertical", 50, 3, 52, 3))
sketch1.addConstraint(Sketcher.Constraint("Vertical", 52, 3, 56, 3))
sketch1.addConstraint(Sketcher.Constraint("Vertical", 56, 3, 58, 3))
sketch1.addConstraint(Sketcher.Constraint("Vertical", 58, 3, 62, 3))
sketch1.addConstraint(Sketcher.Constraint("Vertical", 62, 3, 64, 3))
sketch1.addConstraint(Sketcher.Constraint("Vertical", 45, 3, 69, 3))
sketch1.addConstraint(Sketcher.Constraint("Vertical", 42, 3, 72, 3))
sketch1.addConstraint(Sketcher.Constraint("Vertical", 38, 3, 76, 3))
sketch1.addConstraint(Sketcher.Constraint("Vertical", 35, 3, 79, 3))
sketch1.addConstraint(Sketcher.Constraint("Vertical", 31, 3, 83, 3))
sketch1.addConstraint(Sketcher.Constraint("Vertical", 28, 3, 86, 3))
sketch1.addConstraint(Sketcher.Constraint("Vertical", 23, 3, 4, 1))
sketch1.addConstraint(Sketcher.Constraint("Vertical", 1, 2, 8, 2))
sketch1.addConstraint(Sketcher.Constraint("Vertical", 5, 2, 12, 1))
sketch1.addConstraint(Sketcher.Constraint("Vertical", 9, 2, 16, 2))
sketch1.addConstraint(Sketcher.Constraint("Vertical", 13, 2, 20, 1))
sketch1.addConstraint(Sketcher.Constraint("Vertical", 17, 2, 24, 2))
sketch1.addConstraint(Sketcher.Constraint("Vertical", 86, 3, 26, 2))
sketch1.addConstraint(Sketcher.Constraint("Vertical", 84, 3, 31, 1))
sketch1.addConstraint(Sketcher.Constraint("Vertical", 79, 3, 33, 2))
sketch1.addConstraint(Sketcher.Constraint("Vertical", 77, 3, 38, 1))
sketch1.addConstraint(Sketcher.Constraint("Vertical", 72, 3, 40, 2))
sketch1.addConstraint(Sketcher.Constraint("Vertical", 70, 3, 45, 1))
sketch1.addConstraint(Sketcher.Constraint("Vertical", 64, 3, 50, 1))
sketch1.addConstraint(Sketcher.Constraint("Vertical", 48, 2, 53, 2))
sketch1.addConstraint(Sketcher.Constraint("Vertical", 51, 2, 56, 1))
sketch1.addConstraint(Sketcher.Constraint("Vertical", 54, 2, 59, 2))
sketch1.addConstraint(Sketcher.Constraint("Vertical", 57, 2, 62, 1))
sketch1.addConstraint(Sketcher.Constraint("Vertical", 60, 2, 65, 2))
sketch1.addConstraint(Sketcher.Constraint("Vertical", 46, 2, 67, 2))
sketch1.addConstraint(Sketcher.Constraint("Vertical", 41, 2, 72, 1))
sketch1.addConstraint(Sketcher.Constraint("Vertical", 39, 2, 74, 2))
sketch1.addConstraint(Sketcher.Constraint("Vertical", 34, 2, 79, 1))
sketch1.addConstraint(Sketcher.Constraint("Vertical", 32, 2, 81, 2))
sketch1.addConstraint(Sketcher.Constraint("Vertical", 27, 2, 86, 1))
sketch1.addConstraint(Sketcher.Constraint("Equal", 29, 36))
sketch1.addConstraint(Sketcher.Constraint("Equal", 33, 40))
sketch1.addConstraint(Sketcher.Constraint("Equal", 36, 43))
sketch1.addConstraint(Sketcher.Constraint("Equal", 26, 47))
sketch1.addConstraint(Sketcher.Constraint("Equal", 24, 49))
sketch1.addConstraint(Sketcher.Constraint("Equal", 85, 5))
sketch1.addConstraint(Sketcher.Constraint("Equal", 5, 13))
sketch1.addConstraint(Sketcher.Constraint("Equal", 9, 17))
sketch1.addConstraint(Sketcher.Constraint("Equal", 13, 21))
sketch1.addConstraint(Sketcher.Constraint("Equal", 1, 25))
sketch1.addConstraint(Sketcher.Constraint("Equal", 65, 27))
sketch1.addConstraint(Sketcher.Constraint("Equal", 46, 68))
sketch1.addConstraint(Sketcher.Constraint("Radius", 3, Q("0.0625 in")))
sketch1.addConstraint(Sketcher.Constraint("DistanceX", 0, 2, 0, 1, Q("1.25 in")))
sketch1.addConstraint(Sketcher.Constraint("DistanceX", 33, 1, 33, 2, Q("2.25 in")))
sketch1.addConstraint(Sketcher.Constraint("DistanceY", 1, 2, 1, 1, Q("1.75 in")))
sketch1.addConstraint(Sketcher.Constraint("DistanceY", 9, 2, 9, 1, Q("3.25 in")))
sketch1.addConstraint(Sketcher.Constraint("DistanceX", 30, 3, -1, 1, Q("1.4 in")))
sketch1.addConstraint(Sketcher.Constraint("DistanceX", -1, 1, 37, 3, Q("1.6 in")))
sketch1.addConstraint(Sketcher.Constraint("DistanceX", -1, 1, 50, 3, Q("5.6 in")))
sketch1.addConstraint(Sketcher.Constraint("DistanceY", -1, 1, 3, 3, Q("139.948763 mm")))
pad1 = doc.addObject("PartDesign::Pad", "Pad")
body.addObject(pad1)
pad1.Profile = sketch1
pad1.Length = Q("0.25 in")

doc.recompute()
